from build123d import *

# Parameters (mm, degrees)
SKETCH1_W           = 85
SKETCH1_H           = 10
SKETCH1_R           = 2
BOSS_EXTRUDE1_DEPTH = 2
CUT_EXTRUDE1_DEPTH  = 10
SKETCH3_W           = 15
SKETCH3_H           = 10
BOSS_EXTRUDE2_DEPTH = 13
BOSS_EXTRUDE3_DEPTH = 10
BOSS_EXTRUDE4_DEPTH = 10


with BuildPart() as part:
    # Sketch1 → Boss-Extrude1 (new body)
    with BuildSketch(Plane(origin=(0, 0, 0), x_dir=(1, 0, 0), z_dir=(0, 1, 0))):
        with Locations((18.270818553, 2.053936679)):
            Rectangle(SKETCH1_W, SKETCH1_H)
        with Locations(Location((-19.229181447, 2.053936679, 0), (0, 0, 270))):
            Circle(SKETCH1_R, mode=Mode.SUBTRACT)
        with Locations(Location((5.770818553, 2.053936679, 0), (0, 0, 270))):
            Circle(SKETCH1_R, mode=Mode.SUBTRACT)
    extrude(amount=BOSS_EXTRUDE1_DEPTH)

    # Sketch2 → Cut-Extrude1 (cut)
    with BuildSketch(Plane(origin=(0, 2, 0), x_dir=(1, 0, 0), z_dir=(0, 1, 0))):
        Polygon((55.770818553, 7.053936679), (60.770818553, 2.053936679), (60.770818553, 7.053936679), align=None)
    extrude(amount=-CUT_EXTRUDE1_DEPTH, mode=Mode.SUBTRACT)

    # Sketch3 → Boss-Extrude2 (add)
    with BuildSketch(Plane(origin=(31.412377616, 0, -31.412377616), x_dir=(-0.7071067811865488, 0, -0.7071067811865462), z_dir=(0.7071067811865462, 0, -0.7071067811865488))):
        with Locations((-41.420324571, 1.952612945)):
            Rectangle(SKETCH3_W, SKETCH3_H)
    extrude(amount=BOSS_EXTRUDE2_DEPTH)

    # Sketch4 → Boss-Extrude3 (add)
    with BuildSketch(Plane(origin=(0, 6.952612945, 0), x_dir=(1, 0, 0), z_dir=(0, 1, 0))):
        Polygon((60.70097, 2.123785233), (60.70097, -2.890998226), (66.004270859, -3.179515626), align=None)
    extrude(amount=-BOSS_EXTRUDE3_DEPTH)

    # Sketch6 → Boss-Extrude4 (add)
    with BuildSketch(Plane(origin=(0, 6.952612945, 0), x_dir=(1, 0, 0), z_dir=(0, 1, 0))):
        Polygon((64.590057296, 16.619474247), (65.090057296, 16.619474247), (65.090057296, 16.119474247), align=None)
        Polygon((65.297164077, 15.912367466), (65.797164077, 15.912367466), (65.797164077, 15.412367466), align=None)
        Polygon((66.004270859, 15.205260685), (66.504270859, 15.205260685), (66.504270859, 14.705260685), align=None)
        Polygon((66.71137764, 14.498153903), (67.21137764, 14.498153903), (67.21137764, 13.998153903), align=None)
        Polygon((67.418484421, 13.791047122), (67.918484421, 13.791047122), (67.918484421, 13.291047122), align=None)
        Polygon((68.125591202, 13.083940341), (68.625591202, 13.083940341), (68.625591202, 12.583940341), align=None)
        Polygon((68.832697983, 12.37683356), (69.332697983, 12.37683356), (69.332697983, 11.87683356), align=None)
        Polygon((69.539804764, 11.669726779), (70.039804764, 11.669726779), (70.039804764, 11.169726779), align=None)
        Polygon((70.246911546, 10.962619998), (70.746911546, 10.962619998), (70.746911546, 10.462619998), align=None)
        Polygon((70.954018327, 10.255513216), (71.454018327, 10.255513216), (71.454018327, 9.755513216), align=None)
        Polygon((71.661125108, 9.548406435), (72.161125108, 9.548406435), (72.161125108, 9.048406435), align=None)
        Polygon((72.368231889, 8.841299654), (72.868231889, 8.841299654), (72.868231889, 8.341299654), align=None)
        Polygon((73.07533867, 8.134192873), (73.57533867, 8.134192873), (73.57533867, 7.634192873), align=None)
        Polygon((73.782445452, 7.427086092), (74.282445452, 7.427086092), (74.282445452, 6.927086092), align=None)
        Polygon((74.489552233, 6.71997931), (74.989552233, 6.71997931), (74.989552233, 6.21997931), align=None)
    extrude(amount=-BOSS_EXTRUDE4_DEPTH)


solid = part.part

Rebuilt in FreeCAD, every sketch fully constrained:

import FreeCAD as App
import Part
import Sketcher

V = App.Vector
Q = App.Units.Quantity

doc = App.newDocument("Part")
params = doc.addObject("Spreadsheet::Sheet", "Params")
for row, (alias, value) in enumerate([
    ("sketch1_diameter", "4 mm"),
    ("sketch1_width", "85 mm"),
    ("sketch1_height", "10 mm"),
    ("pad1_length", "2 mm"),
    ("sketch2_width", "5 mm"),
    ("pocket1_length", "10 mm"),
    ("sketch3_width", "15 mm"),
    ("sketch3_height", "10 mm"),
    ("pad2_length", "13 mm"),
    ("sketch4_length", "7.5 mm"),
    ("pad3_length", "10 mm"),
    ("sketch5_width", "0.5 mm"),
    ("pad4_length", "10 mm"),
], start=1):
    params.set(f"A{row}", alias)
    params.set(f"B{row}", "=" + value)
    params.setAlias(f"B{row}", alias)

body = doc.addObject("PartDesign::Body", "Body")

sketch1 = doc.addObject("Sketcher::SketchObject", "Sketch")
body.addObject(sketch1)
sketch1.AttachmentSupport = (doc.XZ_Plane, [""])
sketch1.MapMode = "FlatFace"
sketch1.addGeometry([
    Part.LineSegment(V(-24.2, -7.1, 0), V(-24.2, 2.9, 0)),
    Part.LineSegment(V(-24.2, 2.9, 0), V(60.8, 2.9, 0)),
    Part.LineSegment(V(60.8, 2.9, 0), V(60.8, -7.1, 0)),
    Part.LineSegment(V(60.8, -7.1, 0), V(-24.2, -7.1, 0)),
    Part.Circle(V(-19.2, -2.1, 0), V(0, 0, 1), 2),
    Part.Circle(V(5.8, -2.1, 0), V(0, 0, 1), 2),
], False)
sketch1.addConstraint([
    Sketcher.Constraint("Coincident", 0, 2, 1, 1),
    Sketcher.Constraint("Coincident", 1, 2, 2, 1),
    Sketcher.Constraint("Coincident", 2, 2, 3, 1),
    Sketcher.Constraint("Coincident", 3, 2, 0, 1),
    Sketcher.Constraint("Vertical", 0),
    Sketcher.Constraint("Horizontal", 1),
    Sketcher.Constraint("Vertical", 2),
    Sketcher.Constraint("Horizontal", 3),
    Sketcher.Constraint("Equal", 4, 5),
    Sketcher.Constraint("Horizontal", 4, 3, 5, 3),
    Sketcher.Constraint("Diameter", 4, 4.0),
    Sketcher.Constraint("DistanceX", 1, 1, 1, 2, 85.0),
    Sketcher.Constraint("DistanceY", 0, 1, 0, 2, 10.0),
    Sketcher.Constraint("DistanceX", 4, 3, 5, 3, 25.0),
    Sketcher.Constraint("DistanceX", 0, 2, 4, 3, 5.0),
    Sketcher.Constraint("DistanceY", 4, 3, 0, 2, 5.0),
    Sketcher.Constraint("DistanceX", 4, 3, -1, 1, 19.229181),
    Sketcher.Constraint("DistanceY", 4, 3, -1, 1, 2.053937),
])
sketch1.setExpression("Constraints[10]", "Params.sketch1_diameter")
sketch1.setExpression("Constraints[11]", "Params.sketch1_width")
sketch1.setExpression("Constraints[12]", "Params.sketch1_height")
pad1 = doc.addObject("PartDesign::Pad", "Pad")
body.addObject(pad1)
pad1.Profile = sketch1
pad1.setExpression("Length", "Params.pad1_length")
pad1.Reversed = True

sketch2 = doc.addObject("Sketcher::SketchObject", "Sketch001")
body.addObject(sketch2)
sketch2.AttachmentSupport = (doc.XZ_Plane, [""])
sketch2.MapMode = "FlatFace"
sketch2.AttachmentOffset = App.Placement(V(0, 0, -2), App.Rotation())
sketch2.addGeometry([
    Part.LineSegment(V(56, -7, 0), V(61, -2, 0)),
    Part.LineSegment(V(61, -2, 0), V(61, -7, 0)),
    Part.LineSegment(V(61, -7, 0), V(56, -7, 0)),
], False)
sketch2.addConstraint([
    Sketcher.Constraint("Coincident", 0, 2, 1, 1),
    Sketcher.Constraint("Coincident", 1, 2, 2, 1),
    Sketcher.Constraint("Coincident", 2, 2, 0, 1),
    Sketcher.Constraint("Vertical", 1),
    Sketcher.Constraint("Horizontal", 2),
    Sketcher.Constraint("Equal", 2, 1),
    Sketcher.Constraint("DistanceX", 2, 2, 2, 1, 5.0),
    Sketcher.Constraint("DistanceX", -1, 1, 0, 2, 60.770819),
    Sketcher.Constraint("DistanceY", 0, 2, -1, 1, 2.053937),
])
sketch2.setExpression("Constraints[6]", "Params.sketch2_width")
pocket1 = doc.addObject("PartDesign::Pocket", "Pocket")
body.addObject(pocket1)
pocket1.Profile = sketch2
pocket1.setExpression("Length", "Params.pocket1_length")
pocket1.Reversed = True

sketch3 = doc.addObject("Sketcher::SketchObject", "Sketch002")
body.addObject(sketch3)
sketch3.Placement = App.Placement(V(31.412378, 0, -31.412378), App.Rotation(V(-0.707106781, 0, -0.707106781), V(0, 0.999999999, 0), V(0.707106781, 0, -0.707106781), "ZXY"))
sketch3.addGeometry([
    Part.LineSegment(V(-49, 7, 0), V(-49, -3, 0)),
    Part.LineSegment(V(-49, -3, 0), V(-34, -3, 0)),
    Part.LineSegment(V(-34, -3, 0), V(-34, 7, 0)),
    Part.LineSegment(V(-34, 7, 0), V(-49, 7, 0)),
], False)
sketch3.addConstraint([
    Sketcher.Constraint("Coincident", 0, 2, 1, 1),
    Sketcher.Constraint("Coincident", 1, 2, 2, 1),
    Sketcher.Constraint("Coincident", 2, 2, 3, 1),
    Sketcher.Constraint("Coincident", 3, 2, 0, 1),
    Sketcher.Constraint("Vertical", 0),
    Sketcher.Constraint("Horizontal", 1),
    Sketcher.Constraint("Vertical", 2),
    Sketcher.Constraint("Horizontal", 3),
    Sketcher.Constraint("DistanceX", 1, 1, 1, 2, 15.0),
    Sketcher.Constraint("DistanceY", 0, 2, 0, 1, 10.0),
    Sketcher.Constraint("DistanceX", 0, 2, -1, 1, 48.920325),
    Sketcher.Constraint("DistanceY", 0, 2, -1, 1, 3.047387),
])
sketch3.setExpression("Constraints[8]", "Params.sketch3_width")
sketch3.setExpression("Constraints[9]", "Params.sketch3_height")
pad2 = doc.addObject("PartDesign::Pad", "Pad001")
body.addObject(pad2)
pad2.Profile = sketch3
pad2.setExpression("Length", "Params.pad2_length")

sketch4 = doc.addObject("Sketcher::SketchObject", "Sketch003")
body.addObject(sketch4)
sketch4.AttachmentSupport = (doc.XZ_Plane, [""])
sketch4.MapMode = "FlatFace"
sketch4.AttachmentOffset = App.Placement(V(0, 0, -6.952613), App.Rotation())
sketch4.addGeometry([
    Part.LineSegment(V(61, -2, 0), V(61, 3, 0)),
    Part.LineSegment(V(61, 3, 0), V(66, 3, 0)),
    Part.LineSegment(V(66, 3, 0), V(61, -2, 0)),
], False)
sketch4.addConstraint([
    Sketcher.Constraint("Coincident", 0, 2, 1, 1),
    Sketcher.Constraint("Coincident", 1, 2, 2, 1),
    Sketcher.Constraint("Coincident", 2, 2, 0, 1),
    Sketcher.Constraint("Vertical", 0),
    Sketcher.Constraint("Angle", 2, Q("-135 deg")),
    Sketcher.Constraint("Distance", 2, 7.5),
    Sketcher.Constraint("DistanceY", -1, 1, 0, 2, 2.890998),
    Sketcher.Constraint("DistanceY", 0, 1, 0, 2, 5.014783),
    Sketcher.Constraint("DistanceX", -1, 1, 0, 2, 60.70097),
])
sketch4.setExpression("Constraints[5]", "Params.sketch4_length")
pad3 = doc.addObject("PartDesign::Pad", "Pad002")
body.addObject(pad3)
pad3.Profile = sketch4
pad3.setExpression("Length", "Params.pad3_length")

sketch5 = doc.addObject("Sketcher::SketchObject", "Sketch004")
body.addObject(sketch5)
sketch5.AttachmentSupport = (doc.XZ_Plane, [""])
sketch5.MapMode = "FlatFace"
sketch5.AttachmentOffset = App.Placement(V(0, 0, -6.952613), App.Rotation())
sketch5.addGeometry([
    Part.LineSegment(V(65.1, -16.6, 0), V(64.6, -16.6, 0)),
    Part.LineSegment(V(64.6, -16.6, 0), V(65.1, -16.1, 0)),
    Part.LineSegment(V(65.1, -16.1, 0), V(65.1, -16.6, 0)),
    Part.LineSegment(V(65.8, -15.9, 0), V(65.3, -15.9, 0)),
    Part.LineSegment(V(65.3, -15.9, 0), V(65.8, -15.4, 0)),
    Part.LineSegment(V(65.8, -15.4, 0), V(65.8, -15.9, 0)),
    Part.LineSegment(V(66.5, -15.2, 0), V(66, -15.2, 0)),
    Part.LineSegment(V(66, -15.2, 0), V(66.5, -14.7, 0)),
    Part.LineSegment(V(66.5, -14.7, 0), V(66.5, -15.2, 0)),
    Part.LineSegment(V(67.2, -14.5, 0), V(66.7, -14.5, 0)),
    Part.LineSegment(V(66.7, -14.5, 0), V(67.2, -14, 0)),
    Part.LineSegment(V(67.2, -14, 0), V(67.2, -14.5, 0)),
    Part.LineSegment(V(67.9, -13.8, 0), V(67.4, -13.8, 0)),
    Part.LineSegment(V(67.4, -13.8, 0), V(67.9, -13.3, 0)),
    Part.LineSegment(V(67.9, -13.3, 0), V(67.9, -13.8, 0)),
    Part.LineSegment(V(68.6, -13.1, 0), V(68.1, -13.1, 0)),
    Part.LineSegment(V(68.1, -13.1, 0), V(68.6, -12.6, 0)),
    Part.LineSegment(V(68.6, -12.6, 0), V(68.6, -13.1, 0)),
    Part.LineSegment(V(69.3, -12.4, 0), V(68.8, -12.4, 0)),
    Part.LineSegment(V(68.8, -12.4, 0), V(69.3, -11.9, 0)),
    Part.LineSegment(V(69.3, -11.9, 0), V(69.3, -12.4, 0)),
    Part.LineSegment(V(70, -11.7, 0), V(69.5, -11.7, 0)),
    Part.LineSegment(V(69.5, -11.7, 0), V(70, -11.2, 0)),
    Part.LineSegment(V(70, -11.2, 0), V(70, -11.7, 0)),
    Part.LineSegment(V(70.7, -11, 0), V(70.2, -11, 0)),
    Part.LineSegment(V(70.2, -11, 0), V(70.7, -10.5, 0)),
    Part.LineSegment(V(70.7, -10.5, 0), V(70.7, -11, 0)),
    Part.LineSegment(V(71.5, -10.3, 0), V(71, -10.3, 0)),
    Part.LineSegment(V(71, -10.3, 0), V(71.5, -9.8, 0)),
    Part.LineSegment(V(71.5, -9.8, 0), V(71.5, -10.3, 0)),
    Part.LineSegment(V(72.2, -9.5, 0), V(71.7, -9.5, 0)),
    Part.LineSegment(V(71.7, -9.5, 0), V(72.2, -9, 0)),
    Part.LineSegment(V(72.2, -9, 0), V(72.2, -9.5, 0)),
    Part.LineSegment(V(72.9, -8.8, 0), V(72.4, -8.8, 0)),
    Part.LineSegment(V(72.4, -8.8, 0), V(72.9, -8.3, 0)),
    Part.LineSegment(V(72.9, -8.3, 0), V(72.9, -8.8, 0)),
    Part.LineSegment(V(73.6, -8.1, 0), V(73.1, -8.1, 0)),
    Part.LineSegment(V(73.1, -8.1, 0), V(73.6, -7.6, 0)),
    Part.LineSegment(V(73.6, -7.6, 0), V(73.6, -8.1, 0)),
    Part.LineSegment(V(74.3, -7.4, 0), V(73.8, -7.4, 0)),
    Part.LineSegment(V(73.8, -7.4, 0), V(74.3, -6.9, 0)),
    Part.LineSegment(V(74.3, -6.9, 0), V(74.3, -7.4, 0)),
    Part.LineSegment(V(75, -6.7, 0), V(74.5, -6.7, 0)),
    Part.LineSegment(V(74.5, -6.7, 0), V(75, -6.2, 0)),
    Part.LineSegment(V(75, -6.2, 0), V(75, -6.7, 0)),
], False)
sketch5.addConstraint([
    Sketcher.Constraint("Coincident", 0, 2, 1, 1),
    Sketcher.Constraint("Coincident", 1, 2, 2, 1),
    Sketcher.Constraint("Coincident", 2, 2, 0, 1),
    Sketcher.Constraint("Coincident", 3, 2, 4, 1),
    Sketcher.Constraint("Coincident", 4, 2, 5, 1),
    Sketcher.Constraint("Coincident", 5, 2, 3, 1),
    Sketcher.Constraint("Coincident", 6, 2, 7, 1),
    Sketcher.Constraint("Coincident", 7, 2, 8, 1),
    Sketcher.Constraint("Coincident", 8, 2, 6, 1),
    Sketcher.Constraint("Coincident", 9, 2, 10, 1),
    Sketcher.Constraint("Coincident", 10, 2, 11, 1),
    Sketcher.Constraint("Coincident", 11, 2, 9, 1),
    Sketcher.Constraint("Coincident", 12, 2, 13, 1),
    Sketcher.Constraint("Coincident", 13, 2, 14, 1),
    Sketcher.Constraint("Coincident", 14, 2, 12, 1),
    Sketcher.Constraint("Coincident", 15, 2, 16, 1),
    Sketcher.Constraint("Coincident", 16, 2, 17, 1),
    Sketcher.Constraint("Coincident", 17, 2, 15, 1),
    Sketcher.Constraint("Coincident", 18, 2, 19, 1),
    Sketcher.Constraint("Coincident", 19, 2, 20, 1),
    Sketcher.Constraint("Coincident", 20, 2, 18, 1),
    Sketcher.Constraint("Coincident", 21, 2, 22, 1),
    Sketcher.Constraint("Coincident", 22, 2, 23, 1),
    Sketcher.Constraint("Coincident", 23, 2, 21, 1),
    Sketcher.Constraint("Coincident", 24, 2, 25, 1),
    Sketcher.Constraint("Coincident", 25, 2, 26, 1),
    Sketcher.Constraint("Coincident", 26, 2, 24, 1),
    Sketcher.Constraint("Coincident", 27, 2, 28, 1),
    Sketcher.Constraint("Coincident", 28, 2, 29, 1),
    Sketcher.Constraint("Coincident", 29, 2, 27, 1),
    Sketcher.Constraint("Coincident", 30, 2, 31, 1),
    Sketcher.Constraint("Coincident", 31, 2, 32, 1),
    Sketcher.Constraint("Coincident", 32, 2, 30, 1),
    Sketcher.Constraint("Coincident", 33, 2, 34, 1),
    Sketcher.Constraint("Coincident", 34, 2, 35, 1),
    Sketcher.Constraint("Coincident", 35, 2, 33, 1),
    Sketcher.Constraint("Coincident", 36, 2, 37, 1),
    Sketcher.Constraint("Coincident", 37, 2, 38, 1),
    Sketcher.Constraint("Coincident", 38, 2, 36, 1),
    Sketcher.Constraint("Coincident", 39, 2, 40, 1),
    Sketcher.Constraint("Coincident", 40, 2, 41, 1),
    Sketcher.Constraint("Coincident", 41, 2, 39, 1),
    Sketcher.Constraint("Coincident", 42, 2, 43, 1),
    Sketcher.Constraint("Coincident", 43, 2, 44, 1),
    Sketcher.Constraint("Coincident", 44, 2, 42, 1),
    Sketcher.Constraint("Horizontal", 0),
    Sketcher.Constraint("Vertical", 2),
    Sketcher.Constraint("Horizontal", 3),
    Sketcher.Constraint("Vertical", 5),
    Sketcher.Constraint("Horizontal", 6),
    Sketcher.Constraint("Vertical", 8),
    Sketcher.Constraint("Horizontal", 9),
    Sketcher.Constraint("Vertical", 11),
    Sketcher.Constraint("Horizontal", 12),
    Sketcher.Constraint("Vertical", 14),
    Sketcher.Constraint("Horizontal", 15),
    Sketcher.Constraint("Vertical", 17),
    Sketcher.Constraint("Horizontal", 18),
    Sketcher.Constraint("Vertical", 20),
    Sketcher.Constraint("Horizontal", 21),
    Sketcher.Constraint("Vertical", 23),
    Sketcher.Constraint("Horizontal", 24),
    Sketcher.Constraint("Vertical", 26),
    Sketcher.Constraint("Horizontal", 27),
    Sketcher.Constraint("Vertical", 29),
    Sketcher.Constraint("Horizontal", 30),
    Sketcher.Constraint("Vertical", 32),
    Sketcher.Constraint("Horizontal", 33),
    Sketcher.Constraint("Vertical", 35),
    Sketcher.Constraint("Horizontal", 36),
    Sketcher.Constraint("Vertical", 38),
    Sketcher.Constraint("Horizontal", 39),
    Sketcher.Constraint("Vertical", 41),
    Sketcher.Constraint("Horizontal", 42),
    Sketcher.Constraint("Vertical", 44),
    Sketcher.Constraint("Parallel", 1, 4),
    Sketcher.Constraint("Parallel", 4, 7),
    Sketcher.Constraint("Parallel", 7, 10),
    Sketcher.Constraint("Parallel", 10, 13),
    Sketcher.Constraint("Parallel", 13, 16),
    Sketcher.Constraint("Parallel", 16, 19),
    Sketcher.Constraint("Parallel", 19, 22),
    Sketcher.Constraint("Parallel", 22, 25),
    Sketcher.Constraint("Parallel", 25, 28),
    Sketcher.Constraint("Parallel", 28, 31),
    Sketcher.Constraint("Parallel", 31, 34),
    Sketcher.Constraint("Parallel", 34, 37),
    Sketcher.Constraint("Parallel", 37, 40),
    Sketcher.Constraint("Parallel", 40, 43),
    Sketcher.Constraint("Equal", 0, 3),
    Sketcher.Constraint("Equal", 3, 6),
    Sketcher.Constraint("Equal", 6, 9),
    Sketcher.Constraint("Equal", 9, 12),
    Sketcher.Constraint("Equal", 12, 15),
    Sketcher.Constraint("Equal", 15, 18),
    Sketcher.Constraint("Equal", 18, 21),
    Sketcher.Constraint("Equal", 21, 24),
    Sketcher.Constraint("Equal", 24, 27),
    Sketcher.Constraint("Equal", 27, 30),
    Sketcher.Constraint("Equal", 30, 33),
    Sketcher.Constraint("Equal", 33, 36),
    Sketcher.Constraint("Equal", 36, 39),
    Sketcher.Constraint("Equal", 39, 42),
    Sketcher.Constraint("Equal", 42, 2),
    Sketcher.Constraint("DistanceX", 0, 2, 0, 1, 0.5),
    Sketcher.Constraint("DistanceY", 33, 2, -1, 1, 8.8413),
    Sketcher.Constraint("DistanceX", -1, 1, 6, 2, 66.004271),
    Sketcher.Constraint("DistanceY", 6, 2, -1, 1, 15.205261),
    Sketcher.Constraint("DistanceX", -1, 1, 15, 2, 68.125591),
    Sketcher.Constraint("DistanceY", 15, 2, -1, 1, 13.08394),
    Sketcher.Constraint("DistanceX", -1, 1, 24, 2, 70.246912),
    Sketcher.Constraint("DistanceY", 24, 2, -1, 1, 10.96262),
    Sketcher.Constraint("DistanceX", -1, 1, 27, 2, 70.954018),
    Sketcher.Constraint("DistanceX", -1, 1, 33, 2, 72.368232),
    Sketcher.Constraint("DistanceX", -1, 1, 36, 2, 73.075339),
    Sketcher.Constraint("DistanceY", 42, 2, -1, 1, 6.719979),
    Sketcher.Constraint("DistanceX", -1, 1, 0, 2, 64.590057),
    Sketcher.Constraint("DistanceY", 0, 2, -1, 1, 16.619474),
    Sketcher.Constraint("DistanceX", -1, 1, 3, 2, 65.297164),
    Sketcher.Constraint("DistanceY", 3, 2, -1, 1, 15.912367),
    Sketcher.Constraint("DistanceX", -1, 1, 9, 2, 66.711378),
    Sketcher.Constraint("DistanceY", 9, 2, -1, 1, 14.498154),
    Sketcher.Constraint("DistanceX", -1, 1, 12, 2, 67.418484),
    Sketcher.Constraint("DistanceY", 12, 2, -1, 1, 13.791047),
    Sketcher.Constraint("DistanceX", -1, 1, 18, 2, 68.832698),
    Sketcher.Constraint("DistanceY", 18, 2, -1, 1, 12.376834),
    Sketcher.Constraint("DistanceX", -1, 1, 21, 2, 69.539805),
    Sketcher.Constraint("DistanceY", 21, 2, -1, 1, 11.669727),
    Sketcher.Constraint("DistanceY", 27, 2, -1, 1, 10.255513),
    Sketcher.Constraint("DistanceX", -1, 1, 30, 2, 71.661125),
    Sketcher.Constraint("DistanceY", 30, 2, -1, 1, 9.548406),
    Sketcher.Constraint("DistanceY", 36, 2, -1, 1, 8.134193),
    Sketcher.Constraint("DistanceX", -1, 1, 39, 2, 73.782445),
    Sketcher.Constraint("DistanceY", 39, 2, -1, 1, 7.427086),
    Sketcher.Constraint("DistanceX", -1, 1, 42, 2, 74.489552),
])
sketch5.setExpression("Constraints[104]", "Params.sketch5_width")
pad4 = doc.addObject("PartDesign::Pad", "Pad003")
body.addObject(pad4)
pad4.Profile = sketch5
pad4.setExpression("Length", "Params.pad4_length")

doc.recompute()
